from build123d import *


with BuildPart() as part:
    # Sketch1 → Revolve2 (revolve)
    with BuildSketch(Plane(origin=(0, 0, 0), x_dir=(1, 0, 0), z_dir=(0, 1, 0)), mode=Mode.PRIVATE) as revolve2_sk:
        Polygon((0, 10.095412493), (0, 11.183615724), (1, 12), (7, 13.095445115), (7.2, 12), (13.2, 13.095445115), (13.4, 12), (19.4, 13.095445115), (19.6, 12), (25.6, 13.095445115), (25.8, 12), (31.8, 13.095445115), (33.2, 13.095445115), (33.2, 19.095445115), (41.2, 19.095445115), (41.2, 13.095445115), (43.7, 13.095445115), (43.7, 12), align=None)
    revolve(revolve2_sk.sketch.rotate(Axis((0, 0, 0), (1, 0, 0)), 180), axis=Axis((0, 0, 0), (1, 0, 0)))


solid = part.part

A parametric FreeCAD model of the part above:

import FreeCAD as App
import Part
import Sketcher

doc = App.newDocument("Part")
params = doc.addObject("Spreadsheet::Sheet", "Params")
for row, (alias, value) in enumerate([
    ("sketch1_width", "8 mm"),
    ("sketch1_height", "6 mm"),
    ("sketch1_width2", "2.5 mm"),
    ("sketch1_width3", "1.4 mm"),
    ("revolution_angle", "360 deg"),
], start=1):
    params.set(f"A{row}", alias)
    params.set(f"B{row}", "=" + value)
    params.setAlias(f"B{row}", alias)

body = doc.addObject("PartDesign::Body", "Body")

sketch1 = body.newObject("Sketcher::SketchObject", "Sketch")
sketch1.AttachmentSupport = (doc.getObject("XZ_Plane"), [""])
sketch1.MapMode = "FlatFace"
sketch1.addGeometry([
    Part.LineSegment(App.Vector(0, -11.2, 0), App.Vector(0, -10.1, 0)),
    Part.LineSegment(App.Vector(0, -10.1, 0), App.Vector(43.7, -12, 0)),
    Part.LineSegment(App.Vector(43.7, -12, 0), App.Vector(43.7, -13.1, 0)),
    Part.LineSegment(App.Vector(43.7, -13.1, 0), App.Vector(41.2, -13.1, 0)),
    Part.LineSegment(App.Vector(41.2, -13.1, 0), App.Vector(41.2, -19.1, 0)),
    Part.LineSegment(App.Vector(41.2, -19.1, 0), App.Vector(33.2, -19.1, 0)),
    Part.LineSegment(App.Vector(33.2, -19.1, 0), App.Vector(33.2, -13.1, 0)),
    Part.LineSegment(App.Vector(33.2, -13.1, 0), App.Vector(31.8, -13.1, 0)),
    Part.LineSegment(App.Vector(31.8, -13.1, 0), App.Vector(25.8, -12, 0)),
    Part.LineSegment(App.Vector(25.8, -12, 0), App.Vector(25.6, -13.1, 0)),
    Part.LineSegment(App.Vector(25.6, -13.1, 0), App.Vector(19.6, -12, 0)),
    Part.LineSegment(App.Vector(19.6, -12, 0), App.Vector(19.4, -13.1, 0)),
    Part.LineSegment(App.Vector(19.4, -13.1, 0), App.Vector(13.4, -12, 0)),
    Part.LineSegment(App.Vector(13.4, -12, 0), App.Vector(13.2, -13.1, 0)),
    Part.LineSegment(App.Vector(13.2, -13.1, 0), App.Vector(7.2, -12, 0)),
    Part.LineSegment(App.Vector(7.2, -12, 0), App.Vector(7, -13.1, 0)),
    Part.LineSegment(App.Vector(7, -13.1, 0), App.Vector(1, -12, 0)),
    Part.LineSegment(App.Vector(1, -12, 0), App.Vector(0, -11.2, 0)),
], False)
sketch1.addConstraint([
    Sketcher.Constraint("Coincident", 0, 2, 1, 1),
    Sketcher.Constraint("Coincident", 1, 2, 2, 1),
    Sketcher.Constraint("Coincident", 2, 2, 3, 1),
    Sketcher.Constraint("Coincident", 3, 2, 4, 1),
    Sketcher.Constraint("Coincident", 4, 2, 5, 1),
    Sketcher.Constraint("Coincident", 5, 2, 6, 1),
    Sketcher.Constraint("Coincident", 6, 2, 7, 1),
    Sketcher.Constraint("Coincident", 7, 2, 8, 1),
    Sketcher.Constraint("Coincident", 8, 2, 9, 1),
    Sketcher.Constraint("Coincident", 9, 2, 10, 1),
    Sketcher.Constraint("Coincident", 10, 2, 11, 1),
    Sketcher.Constraint("Coincident", 11, 2, 12, 1),
    Sketcher.Constraint("Coincident", 12, 2, 13, 1),
    Sketcher.Constraint("Coincident", 13, 2, 14, 1),
    Sketcher.Constraint("Coincident", 14, 2, 15, 1),
    Sketcher.Constraint("Coincident", 15, 2, 16, 1),
    Sketcher.Constraint("Coincident", 16, 2, 17, 1),
    Sketcher.Constraint("Coincident", 17, 2, 0, 1),
    Sketcher.Constraint("Vertical", 0),
    Sketcher.Constraint("Vertical", 2),
    Sketcher.Constraint("Horizontal", 3),
    Sketcher.Constraint("Vertical", 4),
    Sketcher.Constraint("Horizontal", 5),
    Sketcher.Constraint("Vertical", 6),
    Sketcher.Constraint("Horizontal", 7),
    Sketcher.Constraint("PointOnObject", 0, 2, -2),
    Sketcher.Constraint("Perpendicular", 8, 9),
    Sketcher.Constraint("Perpendicular", 9, 10),
    Sketcher.Constraint("Perpendicular", 10, 11),
    Sketcher.Constraint("Perpendicular", 11, 12),
    Sketcher.Constraint("Perpendicular", 12, 13),
    Sketcher.Constraint("Perpendicular", 13, 14),
    Sketcher.Constraint("Perpendicular", 14, 15),
    Sketcher.Constraint("Perpendicular", 15, 16),
    Sketcher.Constraint("Horizontal", 3, 2, 6, 2),
    Sketcher.Constraint("Horizontal", 1, 2, 8, 2),
    Sketcher.Constraint("Horizontal", 7, 2, 9, 2),
    Sketcher.Constraint("Horizontal", 8, 2, 10, 2),
    Sketcher.Constraint("Horizontal", 9, 2, 11, 2),
    Sketcher.Constraint("Horizontal", 10, 2, 12, 2),
    Sketcher.Constraint("Horizontal", 11, 2, 13, 2),
    Sketcher.Constraint("Horizontal", 12, 2, 14, 2),
    Sketcher.Constraint("Horizontal", 13, 2, 15, 2),
    Sketcher.Constraint("Horizontal", 14, 2, 16, 2),
    Sketcher.Constraint("DistanceX", 5, 2, 5, 1, 8.0),
    Sketcher.Constraint("DistanceY", 4, 2, 4, 1, 6.0),
    Sketcher.Constraint("DistanceX", 3, 2, 3, 1, 2.5),
    Sketcher.Constraint("DistanceX", 7, 2, 7, 1, 1.4),
    Sketcher.Constraint("DistanceY", 1, 2, -1, 1, 12.0),
    Sketcher.Constraint("DistanceX", -1, 1, 15, 2, 7.0),
    Sketcher.Constraint("DistanceX", -1, 1, 16, 2, 1.0),
    Sketcher.Constraint("DistanceX", -1, 1, 1, 2, 43.7),
    Sketcher.Constraint("DistanceY", 0, 1, 0, 2, 1.088203),
    Sketcher.Constraint("DistanceY", 15, 2, 17, 2, 1.911829),
])
sketch1.setExpression("Constraints[44]", "Params.sketch1_width")
sketch1.setExpression("Constraints[45]", "Params.sketch1_height")
sketch1.setExpression("Constraints[46]", "Params.sketch1_width2")
sketch1.setExpression("Constraints[47]", "Params.sketch1_width3")
revolution = body.newObject("PartDesign::Revolution", "Revolution")
revolution.Profile = sketch1
revolution.ReferenceAxis = (sketch1, ["H_Axis"])
revolution.setExpression("Angle", "Params.revolution_angle")

doc.recompute()
